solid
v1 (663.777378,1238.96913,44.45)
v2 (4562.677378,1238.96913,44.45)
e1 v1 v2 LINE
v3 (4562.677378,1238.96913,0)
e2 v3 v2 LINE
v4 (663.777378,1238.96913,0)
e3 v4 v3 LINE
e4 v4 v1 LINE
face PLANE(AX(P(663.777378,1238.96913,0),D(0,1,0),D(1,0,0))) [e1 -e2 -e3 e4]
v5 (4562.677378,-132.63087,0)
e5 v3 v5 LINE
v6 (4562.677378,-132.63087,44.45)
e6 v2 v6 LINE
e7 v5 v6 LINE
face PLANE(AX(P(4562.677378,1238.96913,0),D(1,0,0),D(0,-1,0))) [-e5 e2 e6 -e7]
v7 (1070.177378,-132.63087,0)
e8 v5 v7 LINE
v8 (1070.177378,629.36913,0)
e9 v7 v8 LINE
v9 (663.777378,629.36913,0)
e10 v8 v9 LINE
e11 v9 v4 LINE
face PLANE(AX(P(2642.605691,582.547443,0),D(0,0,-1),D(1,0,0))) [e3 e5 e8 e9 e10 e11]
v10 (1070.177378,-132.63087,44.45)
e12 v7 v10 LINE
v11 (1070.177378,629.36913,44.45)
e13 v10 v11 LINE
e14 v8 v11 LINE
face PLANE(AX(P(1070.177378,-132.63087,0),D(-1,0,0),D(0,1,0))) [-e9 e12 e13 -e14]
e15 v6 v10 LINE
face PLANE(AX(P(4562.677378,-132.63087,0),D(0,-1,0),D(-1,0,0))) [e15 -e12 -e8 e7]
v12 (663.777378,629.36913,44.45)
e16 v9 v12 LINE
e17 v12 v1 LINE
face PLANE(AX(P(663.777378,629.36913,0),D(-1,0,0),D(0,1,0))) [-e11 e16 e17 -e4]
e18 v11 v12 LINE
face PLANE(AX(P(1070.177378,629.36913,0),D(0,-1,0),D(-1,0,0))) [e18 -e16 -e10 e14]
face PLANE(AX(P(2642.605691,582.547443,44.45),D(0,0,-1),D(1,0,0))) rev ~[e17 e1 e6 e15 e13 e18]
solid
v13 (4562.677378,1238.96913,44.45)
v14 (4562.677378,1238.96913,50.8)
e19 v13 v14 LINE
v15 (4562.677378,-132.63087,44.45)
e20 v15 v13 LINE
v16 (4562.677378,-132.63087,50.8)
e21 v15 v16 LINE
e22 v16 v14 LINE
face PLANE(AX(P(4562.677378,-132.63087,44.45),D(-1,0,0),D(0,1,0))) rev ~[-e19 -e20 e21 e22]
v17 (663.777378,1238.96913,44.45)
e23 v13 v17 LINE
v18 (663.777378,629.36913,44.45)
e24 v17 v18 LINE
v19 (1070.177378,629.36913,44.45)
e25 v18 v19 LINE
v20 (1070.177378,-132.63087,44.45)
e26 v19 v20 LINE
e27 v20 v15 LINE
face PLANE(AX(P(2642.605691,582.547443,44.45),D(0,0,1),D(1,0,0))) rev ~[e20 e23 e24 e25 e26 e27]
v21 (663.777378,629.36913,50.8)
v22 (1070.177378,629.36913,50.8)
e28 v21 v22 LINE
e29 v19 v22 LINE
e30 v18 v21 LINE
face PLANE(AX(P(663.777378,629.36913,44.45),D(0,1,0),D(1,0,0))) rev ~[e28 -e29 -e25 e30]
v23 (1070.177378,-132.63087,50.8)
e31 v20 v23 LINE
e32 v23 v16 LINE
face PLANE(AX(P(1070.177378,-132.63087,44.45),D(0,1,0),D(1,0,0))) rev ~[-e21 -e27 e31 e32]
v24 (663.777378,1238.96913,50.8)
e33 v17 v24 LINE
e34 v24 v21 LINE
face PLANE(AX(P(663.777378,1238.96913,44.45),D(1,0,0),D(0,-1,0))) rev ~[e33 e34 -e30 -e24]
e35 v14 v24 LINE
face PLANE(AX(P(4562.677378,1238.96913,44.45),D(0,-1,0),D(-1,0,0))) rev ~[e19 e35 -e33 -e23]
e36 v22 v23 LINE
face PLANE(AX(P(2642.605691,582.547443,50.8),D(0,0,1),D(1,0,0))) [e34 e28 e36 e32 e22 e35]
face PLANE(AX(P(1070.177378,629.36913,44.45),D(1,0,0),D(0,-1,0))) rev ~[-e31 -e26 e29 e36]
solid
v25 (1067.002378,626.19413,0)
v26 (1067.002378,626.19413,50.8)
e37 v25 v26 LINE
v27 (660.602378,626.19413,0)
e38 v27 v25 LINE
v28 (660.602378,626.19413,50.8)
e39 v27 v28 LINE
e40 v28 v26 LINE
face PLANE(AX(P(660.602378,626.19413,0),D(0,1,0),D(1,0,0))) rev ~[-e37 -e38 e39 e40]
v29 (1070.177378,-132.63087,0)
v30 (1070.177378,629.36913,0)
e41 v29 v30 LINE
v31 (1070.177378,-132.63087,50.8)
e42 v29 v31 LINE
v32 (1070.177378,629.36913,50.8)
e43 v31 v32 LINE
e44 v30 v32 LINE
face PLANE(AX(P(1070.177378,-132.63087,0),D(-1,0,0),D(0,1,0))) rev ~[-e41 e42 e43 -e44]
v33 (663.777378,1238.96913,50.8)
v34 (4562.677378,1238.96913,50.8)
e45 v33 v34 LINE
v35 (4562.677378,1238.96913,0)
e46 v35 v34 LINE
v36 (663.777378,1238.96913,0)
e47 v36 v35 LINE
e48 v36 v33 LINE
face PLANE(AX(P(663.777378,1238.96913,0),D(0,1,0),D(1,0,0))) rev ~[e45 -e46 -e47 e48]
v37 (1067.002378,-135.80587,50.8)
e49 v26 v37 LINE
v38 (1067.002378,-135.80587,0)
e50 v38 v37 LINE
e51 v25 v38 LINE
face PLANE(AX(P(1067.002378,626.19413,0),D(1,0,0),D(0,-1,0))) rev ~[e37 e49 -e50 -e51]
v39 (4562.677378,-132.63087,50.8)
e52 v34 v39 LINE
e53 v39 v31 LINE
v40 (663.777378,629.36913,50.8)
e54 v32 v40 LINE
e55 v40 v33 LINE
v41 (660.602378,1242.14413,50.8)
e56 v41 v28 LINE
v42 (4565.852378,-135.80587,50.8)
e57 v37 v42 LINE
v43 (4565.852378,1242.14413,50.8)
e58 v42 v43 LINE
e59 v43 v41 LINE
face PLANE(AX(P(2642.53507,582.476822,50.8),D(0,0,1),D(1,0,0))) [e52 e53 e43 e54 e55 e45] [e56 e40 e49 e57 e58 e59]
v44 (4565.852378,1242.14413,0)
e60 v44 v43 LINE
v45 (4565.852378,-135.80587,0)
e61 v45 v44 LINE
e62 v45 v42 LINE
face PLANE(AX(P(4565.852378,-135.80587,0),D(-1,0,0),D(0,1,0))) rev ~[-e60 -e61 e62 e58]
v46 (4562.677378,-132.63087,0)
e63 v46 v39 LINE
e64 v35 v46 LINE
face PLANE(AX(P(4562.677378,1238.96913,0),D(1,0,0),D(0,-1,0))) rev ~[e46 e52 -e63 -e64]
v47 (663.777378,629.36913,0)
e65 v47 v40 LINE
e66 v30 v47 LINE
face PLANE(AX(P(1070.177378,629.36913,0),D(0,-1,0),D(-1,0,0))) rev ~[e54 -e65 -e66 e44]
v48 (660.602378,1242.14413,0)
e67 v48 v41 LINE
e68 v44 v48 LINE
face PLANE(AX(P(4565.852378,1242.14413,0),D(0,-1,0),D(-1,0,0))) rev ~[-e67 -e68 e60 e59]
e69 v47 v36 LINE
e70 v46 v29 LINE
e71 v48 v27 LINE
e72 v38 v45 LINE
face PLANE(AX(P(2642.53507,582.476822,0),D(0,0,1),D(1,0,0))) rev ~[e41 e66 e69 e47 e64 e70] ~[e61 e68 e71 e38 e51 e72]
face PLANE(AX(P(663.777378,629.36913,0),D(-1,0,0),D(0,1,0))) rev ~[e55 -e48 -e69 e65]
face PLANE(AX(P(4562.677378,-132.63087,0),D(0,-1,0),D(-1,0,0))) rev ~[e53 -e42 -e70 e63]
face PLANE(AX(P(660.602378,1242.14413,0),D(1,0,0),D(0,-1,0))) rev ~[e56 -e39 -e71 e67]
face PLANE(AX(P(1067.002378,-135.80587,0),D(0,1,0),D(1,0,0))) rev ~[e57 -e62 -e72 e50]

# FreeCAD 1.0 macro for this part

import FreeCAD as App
import Part
import Sketcher
from FreeCAD import Vector
Q = App.Units.Quantity


def add_polygon(sketch, points):
    """Adds a closed chain of lines whose ends are joined by coincident constraints."""
    first, n = sketch.GeometryCount, len(points)
    for a, b in zip(points, points[1:] + points[:1]):
        sketch.addGeometry(Part.LineSegment(App.Vector(*a, 0), App.Vector(*b, 0)), False)
    for i in range(n):
        sketch.addConstraint(Sketcher.Constraint("Coincident", first + i, 2, first + (i + 1) % n, 1))

doc = App.newDocument("Part")
body = doc.addObject("PartDesign::Body", "Body")

sketch1 = body.newObject("Sketcher::SketchObject", "Sketch")
sketch1.AttachmentSupport = (doc.getObject("XY_Plane"), [""])
sketch1.MapMode = "FlatFace"
add_polygon(sketch1, [(660.602378, 1242.14413), (660.602378, 626.19413), (1067.002378, 626.19413), (1067.002378, -135.80587), (4565.852378, -135.80587), (4565.852378, 1242.14413)])
add_polygon(sketch1, [(4562.677378, 1238.96913), (4562.677378, -132.63087), (1070.177378, -132.63087), (1070.177378, 629.36913), (663.777378, 629.36913), (663.777378, 1238.96913)])
sketch1.addConstraint(Sketcher.Constraint("Vertical", 0))
sketch1.addConstraint(Sketcher.Constraint("Horizontal", 1))
sketch1.addConstraint(Sketcher.Constraint("Vertical", 2))
sketch1.addConstraint(Sketcher.Constraint("Horizontal", 3))
sketch1.addConstraint(Sketcher.Constraint("Vertical", 4))
sketch1.addConstraint(Sketcher.Constraint("Horizontal", 5))
sketch1.addConstraint(Sketcher.Constraint("Vertical", 6))
sketch1.addConstraint(Sketcher.Constraint("Horizontal", 7))
sketch1.addConstraint(Sketcher.Constraint("Vertical", 8))
sketch1.addConstraint(Sketcher.Constraint("Horizontal", 9))
sketch1.addConstraint(Sketcher.Constraint("Vertical", 10))
sketch1.addConstraint(Sketcher.Constraint("Horizontal", 11))
sketch1.addConstraint(Sketcher.Constraint("Equal", 1, 9))
sketch1.addConstraint(Sketcher.Constraint("Equal", 2, 8))
sketch1.addConstraint(Sketcher.Constraint("DistanceX", 1, 1, 1, 2, Q("16 in")))
sketch1.addConstraint(Sketcher.Constraint("DistanceY", 2, 2, 2, 1, Q("30 in")))
sketch1.addConstraint(Sketcher.Constraint("DistanceY", 6, 2, 6, 1, Q("54 in")))
sketch1.addConstraint(Sketcher.Constraint("DistanceX", 7, 2, 7, 1, Q("137.5 in")))
sketch1.addConstraint(Sketcher.Constraint("DistanceX", 3, 1, 3, 2, Q("137.75 in")))
sketch1.addConstraint(Sketcher.Constraint("DistanceY", 0, 2, 0, 1, Q("24.25 in")))
sketch1.addConstraint(Sketcher.Constraint("DistanceX", 6, 2, 3, 2, Q("0.125 in")))
sketch1.addConstraint(Sketcher.Constraint("DistanceY", 3, 2, 6, 2, Q("0.125 in")))
sketch1.addConstraint(Sketcher.Constraint("DistanceX", -1, 1, 0, 2, Q("660.602378 mm")))
sketch1.addConstraint(Sketcher.Constraint("DistanceY", -1, 1, 0, 2, Q("626.19413 mm")))
pad1 = body.newObject("PartDesign::Pad", "Pad")
pad1.Profile = sketch1
pad1.Length = Q("2 in")
body2 = doc.addObject("PartDesign::Body", "Body001")

sketch2 = body2.newObject("Sketcher::SketchObject", "Sketch001")
sketch2.AttachmentSupport = (doc.getObject("XY_Plane001"), [""])
sketch2.MapMode = "FlatFace"
add_polygon(sketch2, [(1070.177378, 629.36913), (663.777378, 629.36913), (663.777378, 1238.96913), (4562.677378, 1238.96913), (4562.677378, -132.63087), (1070.177378, -132.63087)])
sketch2.addConstraint(Sketcher.Constraint("Horizontal", 0))
sketch2.addConstraint(Sketcher.Constraint("Vertical", 1))
sketch2.addConstraint(Sketcher.Constraint("Horizontal", 2))
sketch2.addConstraint(Sketcher.Constraint("Vertical", 3))
sketch2.addConstraint(Sketcher.Constraint("Horizontal", 4))
sketch2.addConstraint(Sketcher.Constraint("Vertical", 5))
sketch2.addConstraint(Sketcher.Constraint("DistanceX", 0, 2, 0, 1, Q("16 in")))
sketch2.addConstraint(Sketcher.Constraint("DistanceY", 1, 1, 1, 2, Q("24 in")))
sketch2.addConstraint(Sketcher.Constraint("DistanceY", 3, 2, 3, 1, Q("54 in")))
sketch2.addConstraint(Sketcher.Constraint("DistanceX", 2, 1, 2, 2, Q("153.5 in")))
sketch2.addConstraint(Sketcher.Constraint("DistanceX", -1, 1, 0, 2, Q("663.777378 mm")))
sketch2.addConstraint(Sketcher.Constraint("DistanceY", -1, 1, 0, 2, Q("629.36913 mm")))
pad2 = body2.newObject("PartDesign::Pad", "Pad001")
pad2.Profile = sketch2
pad2.Length = Q("1.75 in")
body3 = doc.addObject("PartDesign::Body", "Body002")

sketch3 = body3.newObject("Sketcher::SketchObject", "Sketch002")
sketch3.AttachmentSupport = (doc.getObject("XY_Plane002"), [""])
sketch3.MapMode = "FlatFace"
sketch3.AttachmentOffset = App.Placement(Vector(0, 0, 1.75 * 25.4), App.Rotation())
add_polygon(sketch3, [(4562.677378, 1238.96913), (663.777378, 1238.96913), (663.777378, 629.36913), (1070.177378, 629.36913), (1070.177378, -132.63087), (4562.677378, -132.63087)])
sketch3.addConstraint(Sketcher.Constraint("Horizontal", 0))
sketch3.addConstraint(Sketcher.Constraint("Vertical", 1))
sketch3.addConstraint(Sketcher.Constraint("Horizontal", 2))
sketch3.addConstraint(Sketcher.Constraint("Vertical", 3))
sketch3.addConstraint(Sketcher.Constraint("Horizontal", 4))
sketch3.addConstraint(Sketcher.Constraint("Vertical", 5))
sketch3.addConstraint(Sketcher.Constraint("DistanceX", 2, 1, 2, 2, Q("16 in")))
sketch3.addConstraint(Sketcher.Constraint("DistanceY", 1, 2, 1, 1, Q("24 in")))
sketch3.addConstraint(Sketcher.Constraint("DistanceY", 3, 2, 3, 1, Q("30 in")))
sketch3.addConstraint(Sketcher.Constraint("DistanceX", 0, 2, 0, 1, Q("153.5 in")))
sketch3.addConstraint(Sketcher.Constraint("DistanceX", -1, 1, 0, 2, Q("663.777378 mm")))
sketch3.addConstraint(Sketcher.Constraint("DistanceY", -1, 1, 0, 2, Q("1238.96913 mm")))
pad3 = body3.newObject("PartDesign::Pad", "Pad002")
pad3.Profile = sketch3
pad3.Length = Q("0.25 in")

doc.recompute()
